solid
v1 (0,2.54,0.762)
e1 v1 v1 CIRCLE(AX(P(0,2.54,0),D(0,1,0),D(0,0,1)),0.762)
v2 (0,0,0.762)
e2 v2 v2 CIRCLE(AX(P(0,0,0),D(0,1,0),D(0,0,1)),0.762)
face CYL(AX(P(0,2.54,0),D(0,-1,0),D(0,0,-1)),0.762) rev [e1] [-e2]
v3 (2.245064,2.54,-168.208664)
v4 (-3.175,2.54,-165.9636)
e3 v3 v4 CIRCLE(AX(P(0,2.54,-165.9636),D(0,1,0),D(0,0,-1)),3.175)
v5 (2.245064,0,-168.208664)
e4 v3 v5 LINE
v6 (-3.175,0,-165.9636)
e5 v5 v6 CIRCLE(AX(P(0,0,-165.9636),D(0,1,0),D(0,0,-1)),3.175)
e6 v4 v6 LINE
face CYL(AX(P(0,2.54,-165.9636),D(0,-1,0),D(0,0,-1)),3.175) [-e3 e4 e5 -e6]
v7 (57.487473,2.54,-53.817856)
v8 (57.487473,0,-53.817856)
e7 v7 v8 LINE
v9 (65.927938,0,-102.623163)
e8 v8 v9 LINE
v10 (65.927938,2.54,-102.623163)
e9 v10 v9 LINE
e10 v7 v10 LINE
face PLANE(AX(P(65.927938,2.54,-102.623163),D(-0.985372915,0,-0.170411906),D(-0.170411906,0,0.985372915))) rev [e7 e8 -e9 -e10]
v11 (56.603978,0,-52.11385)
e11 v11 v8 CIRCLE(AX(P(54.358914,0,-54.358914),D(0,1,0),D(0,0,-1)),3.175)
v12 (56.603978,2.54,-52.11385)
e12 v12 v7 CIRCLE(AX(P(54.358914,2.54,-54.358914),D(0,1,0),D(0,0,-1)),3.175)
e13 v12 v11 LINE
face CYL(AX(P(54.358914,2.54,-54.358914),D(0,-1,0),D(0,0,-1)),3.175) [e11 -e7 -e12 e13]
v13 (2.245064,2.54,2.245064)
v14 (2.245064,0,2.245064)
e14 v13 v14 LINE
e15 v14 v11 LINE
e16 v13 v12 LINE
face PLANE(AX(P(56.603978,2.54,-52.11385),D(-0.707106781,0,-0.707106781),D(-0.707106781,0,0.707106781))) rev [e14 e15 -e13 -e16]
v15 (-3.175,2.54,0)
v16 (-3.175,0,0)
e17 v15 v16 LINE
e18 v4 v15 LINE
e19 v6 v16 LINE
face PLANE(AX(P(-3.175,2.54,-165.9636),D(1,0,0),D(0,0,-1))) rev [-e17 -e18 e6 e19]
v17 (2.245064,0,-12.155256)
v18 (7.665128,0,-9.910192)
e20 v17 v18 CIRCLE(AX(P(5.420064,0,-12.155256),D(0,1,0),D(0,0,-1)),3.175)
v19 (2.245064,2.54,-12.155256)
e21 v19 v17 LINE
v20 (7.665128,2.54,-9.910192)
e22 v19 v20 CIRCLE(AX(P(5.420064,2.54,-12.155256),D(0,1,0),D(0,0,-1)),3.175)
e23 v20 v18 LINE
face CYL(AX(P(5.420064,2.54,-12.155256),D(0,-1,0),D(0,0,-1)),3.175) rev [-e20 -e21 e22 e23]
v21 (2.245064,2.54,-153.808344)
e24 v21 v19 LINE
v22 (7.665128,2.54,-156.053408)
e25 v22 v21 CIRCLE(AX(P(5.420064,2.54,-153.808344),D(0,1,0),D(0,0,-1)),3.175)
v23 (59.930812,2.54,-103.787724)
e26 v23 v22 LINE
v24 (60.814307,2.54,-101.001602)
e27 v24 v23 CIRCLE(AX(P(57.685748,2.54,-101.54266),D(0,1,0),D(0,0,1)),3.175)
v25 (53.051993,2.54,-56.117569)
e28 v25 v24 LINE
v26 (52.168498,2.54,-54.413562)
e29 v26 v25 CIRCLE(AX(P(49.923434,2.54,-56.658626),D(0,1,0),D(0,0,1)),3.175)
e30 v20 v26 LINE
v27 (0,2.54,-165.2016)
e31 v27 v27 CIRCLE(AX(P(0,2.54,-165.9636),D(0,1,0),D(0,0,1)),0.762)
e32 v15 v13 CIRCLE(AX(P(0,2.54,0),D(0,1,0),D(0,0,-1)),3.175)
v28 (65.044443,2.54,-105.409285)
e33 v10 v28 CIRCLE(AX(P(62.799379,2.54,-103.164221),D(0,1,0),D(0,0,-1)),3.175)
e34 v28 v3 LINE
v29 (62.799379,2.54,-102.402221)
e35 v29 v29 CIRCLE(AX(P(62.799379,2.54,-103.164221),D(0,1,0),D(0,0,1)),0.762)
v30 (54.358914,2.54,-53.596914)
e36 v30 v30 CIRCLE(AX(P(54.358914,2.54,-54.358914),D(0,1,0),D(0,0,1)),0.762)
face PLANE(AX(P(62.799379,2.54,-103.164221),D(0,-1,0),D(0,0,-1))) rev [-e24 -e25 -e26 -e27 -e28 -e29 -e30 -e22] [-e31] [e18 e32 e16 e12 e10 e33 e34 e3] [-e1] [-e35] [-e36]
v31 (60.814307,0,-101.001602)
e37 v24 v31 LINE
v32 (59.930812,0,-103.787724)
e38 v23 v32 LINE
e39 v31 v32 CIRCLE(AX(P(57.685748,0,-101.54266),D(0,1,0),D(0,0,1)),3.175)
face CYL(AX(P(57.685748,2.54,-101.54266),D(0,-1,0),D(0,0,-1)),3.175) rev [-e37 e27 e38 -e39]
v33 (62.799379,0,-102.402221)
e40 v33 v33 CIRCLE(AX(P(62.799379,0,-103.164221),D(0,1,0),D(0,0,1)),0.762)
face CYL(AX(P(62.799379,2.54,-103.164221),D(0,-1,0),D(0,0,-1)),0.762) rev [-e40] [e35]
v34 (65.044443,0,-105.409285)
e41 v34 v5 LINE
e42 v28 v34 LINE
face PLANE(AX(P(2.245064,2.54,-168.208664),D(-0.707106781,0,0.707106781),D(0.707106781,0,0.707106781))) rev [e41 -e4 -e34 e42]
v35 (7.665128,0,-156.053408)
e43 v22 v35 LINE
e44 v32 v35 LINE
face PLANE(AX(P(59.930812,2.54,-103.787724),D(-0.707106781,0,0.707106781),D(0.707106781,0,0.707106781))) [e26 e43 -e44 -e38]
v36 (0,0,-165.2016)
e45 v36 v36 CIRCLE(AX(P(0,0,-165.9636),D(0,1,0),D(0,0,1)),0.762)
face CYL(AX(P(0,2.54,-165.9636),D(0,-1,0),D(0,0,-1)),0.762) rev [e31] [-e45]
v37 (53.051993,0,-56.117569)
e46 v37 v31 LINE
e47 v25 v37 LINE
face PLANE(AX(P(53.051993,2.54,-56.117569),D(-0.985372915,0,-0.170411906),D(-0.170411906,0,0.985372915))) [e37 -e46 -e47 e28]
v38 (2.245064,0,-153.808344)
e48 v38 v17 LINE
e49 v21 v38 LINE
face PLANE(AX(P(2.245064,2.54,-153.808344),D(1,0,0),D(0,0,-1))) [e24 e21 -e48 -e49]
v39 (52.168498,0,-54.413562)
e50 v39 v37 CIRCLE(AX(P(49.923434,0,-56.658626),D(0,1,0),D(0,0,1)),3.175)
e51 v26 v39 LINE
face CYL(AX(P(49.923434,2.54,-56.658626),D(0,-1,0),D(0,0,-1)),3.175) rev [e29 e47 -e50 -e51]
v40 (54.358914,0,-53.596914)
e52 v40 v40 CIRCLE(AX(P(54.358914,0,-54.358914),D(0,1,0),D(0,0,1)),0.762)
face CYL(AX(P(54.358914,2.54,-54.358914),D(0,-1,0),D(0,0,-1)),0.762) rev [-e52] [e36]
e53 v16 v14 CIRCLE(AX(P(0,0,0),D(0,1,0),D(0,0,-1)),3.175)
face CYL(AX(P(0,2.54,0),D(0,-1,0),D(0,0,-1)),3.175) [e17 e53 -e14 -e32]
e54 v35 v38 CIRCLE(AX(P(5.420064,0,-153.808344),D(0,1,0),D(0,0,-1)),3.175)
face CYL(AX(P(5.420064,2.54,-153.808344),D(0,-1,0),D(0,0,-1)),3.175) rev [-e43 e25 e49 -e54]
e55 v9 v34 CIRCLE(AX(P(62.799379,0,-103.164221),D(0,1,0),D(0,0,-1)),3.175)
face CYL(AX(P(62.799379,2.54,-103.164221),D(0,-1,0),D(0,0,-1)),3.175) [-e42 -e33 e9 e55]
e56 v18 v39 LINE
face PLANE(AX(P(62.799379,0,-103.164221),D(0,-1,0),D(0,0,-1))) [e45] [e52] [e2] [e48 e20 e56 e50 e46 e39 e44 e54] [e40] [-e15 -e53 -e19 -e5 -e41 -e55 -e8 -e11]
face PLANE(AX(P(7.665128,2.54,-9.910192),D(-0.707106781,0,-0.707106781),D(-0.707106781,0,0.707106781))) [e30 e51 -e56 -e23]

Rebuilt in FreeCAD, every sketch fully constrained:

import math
import FreeCAD as App
import Part
import Sketcher

V = App.Vector
Q = App.Units.Quantity

doc = App.newDocument("Part")
body = doc.addObject("PartDesign::Body", "Body")

# Sketch on XZ plane
sketch1 = body.newObject("Sketcher::SketchObject", "Sketch")
sketch1.AttachmentSupport = (doc.getObject("XZ_Plane"), [""])
sketch1.MapMode = "FlatFace"
sketch1.addGeometry([
    Part.LineSegment(V(65.044443, -105.409285, 0), V(2.245064, -168.208664, 0)),  # 0
    Part.ArcOfCircle(Part.Circle(V(0, -165.9636, 0), V(0, 0, 1), 3.175), math.radians(180), math.radians(315)),  # 1
    Part.LineSegment(V(-3.175, -165.9636, 0), V(-3.175, 0, 0)),  # 2
    Part.ArcOfCircle(Part.Circle(V(0, 0, 0), V(0, 0, 1), 3.175), math.radians(45), math.radians(180)),  # 3
    Part.LineSegment(V(2.245064, 2.245064, 0), V(56.603978, -52.11385, 0)),  # 4
    Part.ArcOfCircle(Part.Circle(V(54.358914, -54.358914, 0), V(0, 0, 1), 3.175), math.radians(9.811769), math.radians(45)),  # 5
    Part.LineSegment(V(57.487473, -53.817856, 0), V(65.927938, -102.623163, 0)),  # 6
    Part.ArcOfCircle(Part.Circle(V(62.799379, -103.164221, 0), V(0, 0, 1), 3.175), math.radians(-45), math.radians(9.811769)),  # 7
    Part.Circle(V(54.358914, -54.358914, 0), V(0, 0, 1), 0.762),  # 8
    Part.ArcOfCircle(Part.Circle(V(5.420064, -153.808344, 0), V(0, 0, 1), 3.175), math.radians(180), math.radians(315)),  # 9
    Part.LineSegment(V(7.665128, -156.053408, 0), V(59.930812, -103.787724, 0)),  # 10
    Part.ArcOfCircle(Part.Circle(V(57.685748, -101.54266, 0), V(0, 0, 1), 3.175), math.radians(-45), math.radians(9.811769)),  # 11
    Part.LineSegment(V(60.814307, -101.001602, 0), V(53.051993, -56.117569, 0)),  # 12
    Part.ArcOfCircle(Part.Circle(V(49.923434, -56.658626, 0), V(0, 0, 1), 3.175), math.radians(9.811769), math.radians(45)),  # 13
    Part.LineSegment(V(52.168498, -54.413562, 0), V(7.665128, -9.910192, 0)),  # 14
    Part.ArcOfCircle(Part.Circle(V(5.420064, -12.155256, 0), V(0, 0, 1), 3.175), math.radians(45), math.radians(180)),  # 15
    Part.LineSegment(V(2.245064, -12.155256, 0), V(2.245064, -153.808344, 0)),  # 16
    Part.Circle(V(0, 0, 0), V(0, 0, 1), 0.762),  # 17
    Part.Circle(V(62.799379, -103.164221, 0), V(0, 0, 1), 0.762),  # 18
    Part.Circle(V(0, -165.9636, 0), V(0, 0, 1), 0.762),  # 19
], False)
sketch1.addConstraint([
    Sketcher.Constraint("Tangent", 0, 2, 1, 2),
    Sketcher.Constraint("Tangent", 1, 1, 2, 1),
    Sketcher.Constraint("Tangent", 2, 2, 3, 2),
    Sketcher.Constraint("Tangent", 3, 1, 4, 1),
    Sketcher.Constraint("Tangent", 4, 2, 5, 2),
    Sketcher.Constraint("Tangent", 5, 1, 6, 1),
    Sketcher.Constraint("Tangent", 6, 2, 7, 2),
    Sketcher.Constraint("Tangent", 7, 1, 0, 1),
    Sketcher.Constraint("Tangent", 9, 2, 10, 1),
    Sketcher.Constraint("Tangent", 10, 2, 11, 1),
    Sketcher.Constraint("Tangent", 11, 2, 12, 1),
    Sketcher.Constraint("Tangent", 12, 2, 13, 1),
    Sketcher.Constraint("Tangent", 13, 2, 14, 1),
    Sketcher.Constraint("Tangent", 14, 2, 15, 1),
    Sketcher.Constraint("Tangent", 15, 2, 16, 1),
    Sketcher.Constraint("Tangent", 16, 2, 9, 1),
    Sketcher.Constraint("Vertical", 2),
    Sketcher.Constraint("Vertical", 16),
    Sketcher.Constraint("Coincident", 3, 3, -1, 1),
    Sketcher.Constraint("Coincident", 17, 3, -1, 1),
    Sketcher.Constraint("Coincident", 8, 3, 5, 3),
    Sketcher.Constraint("Coincident", 18, 3, 7, 3),
    Sketcher.Constraint("Coincident", 19, 3, 1, 3),
    Sketcher.Constraint("Equal", 1, 3),
    Sketcher.Constraint("Equal", 3, 5),
    Sketcher.Constraint("Equal", 5, 7),
    Sketcher.Constraint("Equal", 7, 9),
    Sketcher.Constraint("Equal", 9, 11),
    Sketcher.Constraint("Equal", 11, 13),
    Sketcher.Constraint("Equal", 13, 15),
    Sketcher.Constraint("Equal", 8, 17),
    Sketcher.Constraint("Equal", 17, 18),
    Sketcher.Constraint("Equal", 18, 19),
    Sketcher.Constraint("Perpendicular", 0, 4),
    Sketcher.Constraint("Perpendicular", 4, 10),
    Sketcher.Constraint("Parallel", 6, 12),
    Sketcher.Constraint("Perpendicular", 10, 14),
    Sketcher.Constraint("Vertical", 0, 2, 3, 1),
    Sketcher.Constraint("Vertical", 3, 1, 15, 2),
    Sketcher.Constraint("Diameter", 8, Q("0.06 in")),
    Sketcher.Constraint("Radius", 1, Q("0.125 in")),
    Sketcher.Constraint("DistanceY", 2, 1, 2, 2, Q("6.534 in")),
    Sketcher.Constraint("Distance", 12, Q("45.550302 mm")),
    Sketcher.Constraint("DistanceX", -1, 1, 13, 2, Q("52.168498 mm")),
    Sketcher.Constraint("DistanceX", 4, 2, 7, 3, Q("6.195401 mm")),
    Sketcher.Constraint("Distance", 10, Q("73.914839 mm")),
    Sketcher.Constraint("DistanceY", 11, 3, -1, 1, Q("101.54266 mm")),
])
pad1 = body.newObject("PartDesign::Pad", "Pad")
pad1.Profile = sketch1
pad1.Length = Q("0.1 in")
pad1.Reversed = True

doc.recompute()
